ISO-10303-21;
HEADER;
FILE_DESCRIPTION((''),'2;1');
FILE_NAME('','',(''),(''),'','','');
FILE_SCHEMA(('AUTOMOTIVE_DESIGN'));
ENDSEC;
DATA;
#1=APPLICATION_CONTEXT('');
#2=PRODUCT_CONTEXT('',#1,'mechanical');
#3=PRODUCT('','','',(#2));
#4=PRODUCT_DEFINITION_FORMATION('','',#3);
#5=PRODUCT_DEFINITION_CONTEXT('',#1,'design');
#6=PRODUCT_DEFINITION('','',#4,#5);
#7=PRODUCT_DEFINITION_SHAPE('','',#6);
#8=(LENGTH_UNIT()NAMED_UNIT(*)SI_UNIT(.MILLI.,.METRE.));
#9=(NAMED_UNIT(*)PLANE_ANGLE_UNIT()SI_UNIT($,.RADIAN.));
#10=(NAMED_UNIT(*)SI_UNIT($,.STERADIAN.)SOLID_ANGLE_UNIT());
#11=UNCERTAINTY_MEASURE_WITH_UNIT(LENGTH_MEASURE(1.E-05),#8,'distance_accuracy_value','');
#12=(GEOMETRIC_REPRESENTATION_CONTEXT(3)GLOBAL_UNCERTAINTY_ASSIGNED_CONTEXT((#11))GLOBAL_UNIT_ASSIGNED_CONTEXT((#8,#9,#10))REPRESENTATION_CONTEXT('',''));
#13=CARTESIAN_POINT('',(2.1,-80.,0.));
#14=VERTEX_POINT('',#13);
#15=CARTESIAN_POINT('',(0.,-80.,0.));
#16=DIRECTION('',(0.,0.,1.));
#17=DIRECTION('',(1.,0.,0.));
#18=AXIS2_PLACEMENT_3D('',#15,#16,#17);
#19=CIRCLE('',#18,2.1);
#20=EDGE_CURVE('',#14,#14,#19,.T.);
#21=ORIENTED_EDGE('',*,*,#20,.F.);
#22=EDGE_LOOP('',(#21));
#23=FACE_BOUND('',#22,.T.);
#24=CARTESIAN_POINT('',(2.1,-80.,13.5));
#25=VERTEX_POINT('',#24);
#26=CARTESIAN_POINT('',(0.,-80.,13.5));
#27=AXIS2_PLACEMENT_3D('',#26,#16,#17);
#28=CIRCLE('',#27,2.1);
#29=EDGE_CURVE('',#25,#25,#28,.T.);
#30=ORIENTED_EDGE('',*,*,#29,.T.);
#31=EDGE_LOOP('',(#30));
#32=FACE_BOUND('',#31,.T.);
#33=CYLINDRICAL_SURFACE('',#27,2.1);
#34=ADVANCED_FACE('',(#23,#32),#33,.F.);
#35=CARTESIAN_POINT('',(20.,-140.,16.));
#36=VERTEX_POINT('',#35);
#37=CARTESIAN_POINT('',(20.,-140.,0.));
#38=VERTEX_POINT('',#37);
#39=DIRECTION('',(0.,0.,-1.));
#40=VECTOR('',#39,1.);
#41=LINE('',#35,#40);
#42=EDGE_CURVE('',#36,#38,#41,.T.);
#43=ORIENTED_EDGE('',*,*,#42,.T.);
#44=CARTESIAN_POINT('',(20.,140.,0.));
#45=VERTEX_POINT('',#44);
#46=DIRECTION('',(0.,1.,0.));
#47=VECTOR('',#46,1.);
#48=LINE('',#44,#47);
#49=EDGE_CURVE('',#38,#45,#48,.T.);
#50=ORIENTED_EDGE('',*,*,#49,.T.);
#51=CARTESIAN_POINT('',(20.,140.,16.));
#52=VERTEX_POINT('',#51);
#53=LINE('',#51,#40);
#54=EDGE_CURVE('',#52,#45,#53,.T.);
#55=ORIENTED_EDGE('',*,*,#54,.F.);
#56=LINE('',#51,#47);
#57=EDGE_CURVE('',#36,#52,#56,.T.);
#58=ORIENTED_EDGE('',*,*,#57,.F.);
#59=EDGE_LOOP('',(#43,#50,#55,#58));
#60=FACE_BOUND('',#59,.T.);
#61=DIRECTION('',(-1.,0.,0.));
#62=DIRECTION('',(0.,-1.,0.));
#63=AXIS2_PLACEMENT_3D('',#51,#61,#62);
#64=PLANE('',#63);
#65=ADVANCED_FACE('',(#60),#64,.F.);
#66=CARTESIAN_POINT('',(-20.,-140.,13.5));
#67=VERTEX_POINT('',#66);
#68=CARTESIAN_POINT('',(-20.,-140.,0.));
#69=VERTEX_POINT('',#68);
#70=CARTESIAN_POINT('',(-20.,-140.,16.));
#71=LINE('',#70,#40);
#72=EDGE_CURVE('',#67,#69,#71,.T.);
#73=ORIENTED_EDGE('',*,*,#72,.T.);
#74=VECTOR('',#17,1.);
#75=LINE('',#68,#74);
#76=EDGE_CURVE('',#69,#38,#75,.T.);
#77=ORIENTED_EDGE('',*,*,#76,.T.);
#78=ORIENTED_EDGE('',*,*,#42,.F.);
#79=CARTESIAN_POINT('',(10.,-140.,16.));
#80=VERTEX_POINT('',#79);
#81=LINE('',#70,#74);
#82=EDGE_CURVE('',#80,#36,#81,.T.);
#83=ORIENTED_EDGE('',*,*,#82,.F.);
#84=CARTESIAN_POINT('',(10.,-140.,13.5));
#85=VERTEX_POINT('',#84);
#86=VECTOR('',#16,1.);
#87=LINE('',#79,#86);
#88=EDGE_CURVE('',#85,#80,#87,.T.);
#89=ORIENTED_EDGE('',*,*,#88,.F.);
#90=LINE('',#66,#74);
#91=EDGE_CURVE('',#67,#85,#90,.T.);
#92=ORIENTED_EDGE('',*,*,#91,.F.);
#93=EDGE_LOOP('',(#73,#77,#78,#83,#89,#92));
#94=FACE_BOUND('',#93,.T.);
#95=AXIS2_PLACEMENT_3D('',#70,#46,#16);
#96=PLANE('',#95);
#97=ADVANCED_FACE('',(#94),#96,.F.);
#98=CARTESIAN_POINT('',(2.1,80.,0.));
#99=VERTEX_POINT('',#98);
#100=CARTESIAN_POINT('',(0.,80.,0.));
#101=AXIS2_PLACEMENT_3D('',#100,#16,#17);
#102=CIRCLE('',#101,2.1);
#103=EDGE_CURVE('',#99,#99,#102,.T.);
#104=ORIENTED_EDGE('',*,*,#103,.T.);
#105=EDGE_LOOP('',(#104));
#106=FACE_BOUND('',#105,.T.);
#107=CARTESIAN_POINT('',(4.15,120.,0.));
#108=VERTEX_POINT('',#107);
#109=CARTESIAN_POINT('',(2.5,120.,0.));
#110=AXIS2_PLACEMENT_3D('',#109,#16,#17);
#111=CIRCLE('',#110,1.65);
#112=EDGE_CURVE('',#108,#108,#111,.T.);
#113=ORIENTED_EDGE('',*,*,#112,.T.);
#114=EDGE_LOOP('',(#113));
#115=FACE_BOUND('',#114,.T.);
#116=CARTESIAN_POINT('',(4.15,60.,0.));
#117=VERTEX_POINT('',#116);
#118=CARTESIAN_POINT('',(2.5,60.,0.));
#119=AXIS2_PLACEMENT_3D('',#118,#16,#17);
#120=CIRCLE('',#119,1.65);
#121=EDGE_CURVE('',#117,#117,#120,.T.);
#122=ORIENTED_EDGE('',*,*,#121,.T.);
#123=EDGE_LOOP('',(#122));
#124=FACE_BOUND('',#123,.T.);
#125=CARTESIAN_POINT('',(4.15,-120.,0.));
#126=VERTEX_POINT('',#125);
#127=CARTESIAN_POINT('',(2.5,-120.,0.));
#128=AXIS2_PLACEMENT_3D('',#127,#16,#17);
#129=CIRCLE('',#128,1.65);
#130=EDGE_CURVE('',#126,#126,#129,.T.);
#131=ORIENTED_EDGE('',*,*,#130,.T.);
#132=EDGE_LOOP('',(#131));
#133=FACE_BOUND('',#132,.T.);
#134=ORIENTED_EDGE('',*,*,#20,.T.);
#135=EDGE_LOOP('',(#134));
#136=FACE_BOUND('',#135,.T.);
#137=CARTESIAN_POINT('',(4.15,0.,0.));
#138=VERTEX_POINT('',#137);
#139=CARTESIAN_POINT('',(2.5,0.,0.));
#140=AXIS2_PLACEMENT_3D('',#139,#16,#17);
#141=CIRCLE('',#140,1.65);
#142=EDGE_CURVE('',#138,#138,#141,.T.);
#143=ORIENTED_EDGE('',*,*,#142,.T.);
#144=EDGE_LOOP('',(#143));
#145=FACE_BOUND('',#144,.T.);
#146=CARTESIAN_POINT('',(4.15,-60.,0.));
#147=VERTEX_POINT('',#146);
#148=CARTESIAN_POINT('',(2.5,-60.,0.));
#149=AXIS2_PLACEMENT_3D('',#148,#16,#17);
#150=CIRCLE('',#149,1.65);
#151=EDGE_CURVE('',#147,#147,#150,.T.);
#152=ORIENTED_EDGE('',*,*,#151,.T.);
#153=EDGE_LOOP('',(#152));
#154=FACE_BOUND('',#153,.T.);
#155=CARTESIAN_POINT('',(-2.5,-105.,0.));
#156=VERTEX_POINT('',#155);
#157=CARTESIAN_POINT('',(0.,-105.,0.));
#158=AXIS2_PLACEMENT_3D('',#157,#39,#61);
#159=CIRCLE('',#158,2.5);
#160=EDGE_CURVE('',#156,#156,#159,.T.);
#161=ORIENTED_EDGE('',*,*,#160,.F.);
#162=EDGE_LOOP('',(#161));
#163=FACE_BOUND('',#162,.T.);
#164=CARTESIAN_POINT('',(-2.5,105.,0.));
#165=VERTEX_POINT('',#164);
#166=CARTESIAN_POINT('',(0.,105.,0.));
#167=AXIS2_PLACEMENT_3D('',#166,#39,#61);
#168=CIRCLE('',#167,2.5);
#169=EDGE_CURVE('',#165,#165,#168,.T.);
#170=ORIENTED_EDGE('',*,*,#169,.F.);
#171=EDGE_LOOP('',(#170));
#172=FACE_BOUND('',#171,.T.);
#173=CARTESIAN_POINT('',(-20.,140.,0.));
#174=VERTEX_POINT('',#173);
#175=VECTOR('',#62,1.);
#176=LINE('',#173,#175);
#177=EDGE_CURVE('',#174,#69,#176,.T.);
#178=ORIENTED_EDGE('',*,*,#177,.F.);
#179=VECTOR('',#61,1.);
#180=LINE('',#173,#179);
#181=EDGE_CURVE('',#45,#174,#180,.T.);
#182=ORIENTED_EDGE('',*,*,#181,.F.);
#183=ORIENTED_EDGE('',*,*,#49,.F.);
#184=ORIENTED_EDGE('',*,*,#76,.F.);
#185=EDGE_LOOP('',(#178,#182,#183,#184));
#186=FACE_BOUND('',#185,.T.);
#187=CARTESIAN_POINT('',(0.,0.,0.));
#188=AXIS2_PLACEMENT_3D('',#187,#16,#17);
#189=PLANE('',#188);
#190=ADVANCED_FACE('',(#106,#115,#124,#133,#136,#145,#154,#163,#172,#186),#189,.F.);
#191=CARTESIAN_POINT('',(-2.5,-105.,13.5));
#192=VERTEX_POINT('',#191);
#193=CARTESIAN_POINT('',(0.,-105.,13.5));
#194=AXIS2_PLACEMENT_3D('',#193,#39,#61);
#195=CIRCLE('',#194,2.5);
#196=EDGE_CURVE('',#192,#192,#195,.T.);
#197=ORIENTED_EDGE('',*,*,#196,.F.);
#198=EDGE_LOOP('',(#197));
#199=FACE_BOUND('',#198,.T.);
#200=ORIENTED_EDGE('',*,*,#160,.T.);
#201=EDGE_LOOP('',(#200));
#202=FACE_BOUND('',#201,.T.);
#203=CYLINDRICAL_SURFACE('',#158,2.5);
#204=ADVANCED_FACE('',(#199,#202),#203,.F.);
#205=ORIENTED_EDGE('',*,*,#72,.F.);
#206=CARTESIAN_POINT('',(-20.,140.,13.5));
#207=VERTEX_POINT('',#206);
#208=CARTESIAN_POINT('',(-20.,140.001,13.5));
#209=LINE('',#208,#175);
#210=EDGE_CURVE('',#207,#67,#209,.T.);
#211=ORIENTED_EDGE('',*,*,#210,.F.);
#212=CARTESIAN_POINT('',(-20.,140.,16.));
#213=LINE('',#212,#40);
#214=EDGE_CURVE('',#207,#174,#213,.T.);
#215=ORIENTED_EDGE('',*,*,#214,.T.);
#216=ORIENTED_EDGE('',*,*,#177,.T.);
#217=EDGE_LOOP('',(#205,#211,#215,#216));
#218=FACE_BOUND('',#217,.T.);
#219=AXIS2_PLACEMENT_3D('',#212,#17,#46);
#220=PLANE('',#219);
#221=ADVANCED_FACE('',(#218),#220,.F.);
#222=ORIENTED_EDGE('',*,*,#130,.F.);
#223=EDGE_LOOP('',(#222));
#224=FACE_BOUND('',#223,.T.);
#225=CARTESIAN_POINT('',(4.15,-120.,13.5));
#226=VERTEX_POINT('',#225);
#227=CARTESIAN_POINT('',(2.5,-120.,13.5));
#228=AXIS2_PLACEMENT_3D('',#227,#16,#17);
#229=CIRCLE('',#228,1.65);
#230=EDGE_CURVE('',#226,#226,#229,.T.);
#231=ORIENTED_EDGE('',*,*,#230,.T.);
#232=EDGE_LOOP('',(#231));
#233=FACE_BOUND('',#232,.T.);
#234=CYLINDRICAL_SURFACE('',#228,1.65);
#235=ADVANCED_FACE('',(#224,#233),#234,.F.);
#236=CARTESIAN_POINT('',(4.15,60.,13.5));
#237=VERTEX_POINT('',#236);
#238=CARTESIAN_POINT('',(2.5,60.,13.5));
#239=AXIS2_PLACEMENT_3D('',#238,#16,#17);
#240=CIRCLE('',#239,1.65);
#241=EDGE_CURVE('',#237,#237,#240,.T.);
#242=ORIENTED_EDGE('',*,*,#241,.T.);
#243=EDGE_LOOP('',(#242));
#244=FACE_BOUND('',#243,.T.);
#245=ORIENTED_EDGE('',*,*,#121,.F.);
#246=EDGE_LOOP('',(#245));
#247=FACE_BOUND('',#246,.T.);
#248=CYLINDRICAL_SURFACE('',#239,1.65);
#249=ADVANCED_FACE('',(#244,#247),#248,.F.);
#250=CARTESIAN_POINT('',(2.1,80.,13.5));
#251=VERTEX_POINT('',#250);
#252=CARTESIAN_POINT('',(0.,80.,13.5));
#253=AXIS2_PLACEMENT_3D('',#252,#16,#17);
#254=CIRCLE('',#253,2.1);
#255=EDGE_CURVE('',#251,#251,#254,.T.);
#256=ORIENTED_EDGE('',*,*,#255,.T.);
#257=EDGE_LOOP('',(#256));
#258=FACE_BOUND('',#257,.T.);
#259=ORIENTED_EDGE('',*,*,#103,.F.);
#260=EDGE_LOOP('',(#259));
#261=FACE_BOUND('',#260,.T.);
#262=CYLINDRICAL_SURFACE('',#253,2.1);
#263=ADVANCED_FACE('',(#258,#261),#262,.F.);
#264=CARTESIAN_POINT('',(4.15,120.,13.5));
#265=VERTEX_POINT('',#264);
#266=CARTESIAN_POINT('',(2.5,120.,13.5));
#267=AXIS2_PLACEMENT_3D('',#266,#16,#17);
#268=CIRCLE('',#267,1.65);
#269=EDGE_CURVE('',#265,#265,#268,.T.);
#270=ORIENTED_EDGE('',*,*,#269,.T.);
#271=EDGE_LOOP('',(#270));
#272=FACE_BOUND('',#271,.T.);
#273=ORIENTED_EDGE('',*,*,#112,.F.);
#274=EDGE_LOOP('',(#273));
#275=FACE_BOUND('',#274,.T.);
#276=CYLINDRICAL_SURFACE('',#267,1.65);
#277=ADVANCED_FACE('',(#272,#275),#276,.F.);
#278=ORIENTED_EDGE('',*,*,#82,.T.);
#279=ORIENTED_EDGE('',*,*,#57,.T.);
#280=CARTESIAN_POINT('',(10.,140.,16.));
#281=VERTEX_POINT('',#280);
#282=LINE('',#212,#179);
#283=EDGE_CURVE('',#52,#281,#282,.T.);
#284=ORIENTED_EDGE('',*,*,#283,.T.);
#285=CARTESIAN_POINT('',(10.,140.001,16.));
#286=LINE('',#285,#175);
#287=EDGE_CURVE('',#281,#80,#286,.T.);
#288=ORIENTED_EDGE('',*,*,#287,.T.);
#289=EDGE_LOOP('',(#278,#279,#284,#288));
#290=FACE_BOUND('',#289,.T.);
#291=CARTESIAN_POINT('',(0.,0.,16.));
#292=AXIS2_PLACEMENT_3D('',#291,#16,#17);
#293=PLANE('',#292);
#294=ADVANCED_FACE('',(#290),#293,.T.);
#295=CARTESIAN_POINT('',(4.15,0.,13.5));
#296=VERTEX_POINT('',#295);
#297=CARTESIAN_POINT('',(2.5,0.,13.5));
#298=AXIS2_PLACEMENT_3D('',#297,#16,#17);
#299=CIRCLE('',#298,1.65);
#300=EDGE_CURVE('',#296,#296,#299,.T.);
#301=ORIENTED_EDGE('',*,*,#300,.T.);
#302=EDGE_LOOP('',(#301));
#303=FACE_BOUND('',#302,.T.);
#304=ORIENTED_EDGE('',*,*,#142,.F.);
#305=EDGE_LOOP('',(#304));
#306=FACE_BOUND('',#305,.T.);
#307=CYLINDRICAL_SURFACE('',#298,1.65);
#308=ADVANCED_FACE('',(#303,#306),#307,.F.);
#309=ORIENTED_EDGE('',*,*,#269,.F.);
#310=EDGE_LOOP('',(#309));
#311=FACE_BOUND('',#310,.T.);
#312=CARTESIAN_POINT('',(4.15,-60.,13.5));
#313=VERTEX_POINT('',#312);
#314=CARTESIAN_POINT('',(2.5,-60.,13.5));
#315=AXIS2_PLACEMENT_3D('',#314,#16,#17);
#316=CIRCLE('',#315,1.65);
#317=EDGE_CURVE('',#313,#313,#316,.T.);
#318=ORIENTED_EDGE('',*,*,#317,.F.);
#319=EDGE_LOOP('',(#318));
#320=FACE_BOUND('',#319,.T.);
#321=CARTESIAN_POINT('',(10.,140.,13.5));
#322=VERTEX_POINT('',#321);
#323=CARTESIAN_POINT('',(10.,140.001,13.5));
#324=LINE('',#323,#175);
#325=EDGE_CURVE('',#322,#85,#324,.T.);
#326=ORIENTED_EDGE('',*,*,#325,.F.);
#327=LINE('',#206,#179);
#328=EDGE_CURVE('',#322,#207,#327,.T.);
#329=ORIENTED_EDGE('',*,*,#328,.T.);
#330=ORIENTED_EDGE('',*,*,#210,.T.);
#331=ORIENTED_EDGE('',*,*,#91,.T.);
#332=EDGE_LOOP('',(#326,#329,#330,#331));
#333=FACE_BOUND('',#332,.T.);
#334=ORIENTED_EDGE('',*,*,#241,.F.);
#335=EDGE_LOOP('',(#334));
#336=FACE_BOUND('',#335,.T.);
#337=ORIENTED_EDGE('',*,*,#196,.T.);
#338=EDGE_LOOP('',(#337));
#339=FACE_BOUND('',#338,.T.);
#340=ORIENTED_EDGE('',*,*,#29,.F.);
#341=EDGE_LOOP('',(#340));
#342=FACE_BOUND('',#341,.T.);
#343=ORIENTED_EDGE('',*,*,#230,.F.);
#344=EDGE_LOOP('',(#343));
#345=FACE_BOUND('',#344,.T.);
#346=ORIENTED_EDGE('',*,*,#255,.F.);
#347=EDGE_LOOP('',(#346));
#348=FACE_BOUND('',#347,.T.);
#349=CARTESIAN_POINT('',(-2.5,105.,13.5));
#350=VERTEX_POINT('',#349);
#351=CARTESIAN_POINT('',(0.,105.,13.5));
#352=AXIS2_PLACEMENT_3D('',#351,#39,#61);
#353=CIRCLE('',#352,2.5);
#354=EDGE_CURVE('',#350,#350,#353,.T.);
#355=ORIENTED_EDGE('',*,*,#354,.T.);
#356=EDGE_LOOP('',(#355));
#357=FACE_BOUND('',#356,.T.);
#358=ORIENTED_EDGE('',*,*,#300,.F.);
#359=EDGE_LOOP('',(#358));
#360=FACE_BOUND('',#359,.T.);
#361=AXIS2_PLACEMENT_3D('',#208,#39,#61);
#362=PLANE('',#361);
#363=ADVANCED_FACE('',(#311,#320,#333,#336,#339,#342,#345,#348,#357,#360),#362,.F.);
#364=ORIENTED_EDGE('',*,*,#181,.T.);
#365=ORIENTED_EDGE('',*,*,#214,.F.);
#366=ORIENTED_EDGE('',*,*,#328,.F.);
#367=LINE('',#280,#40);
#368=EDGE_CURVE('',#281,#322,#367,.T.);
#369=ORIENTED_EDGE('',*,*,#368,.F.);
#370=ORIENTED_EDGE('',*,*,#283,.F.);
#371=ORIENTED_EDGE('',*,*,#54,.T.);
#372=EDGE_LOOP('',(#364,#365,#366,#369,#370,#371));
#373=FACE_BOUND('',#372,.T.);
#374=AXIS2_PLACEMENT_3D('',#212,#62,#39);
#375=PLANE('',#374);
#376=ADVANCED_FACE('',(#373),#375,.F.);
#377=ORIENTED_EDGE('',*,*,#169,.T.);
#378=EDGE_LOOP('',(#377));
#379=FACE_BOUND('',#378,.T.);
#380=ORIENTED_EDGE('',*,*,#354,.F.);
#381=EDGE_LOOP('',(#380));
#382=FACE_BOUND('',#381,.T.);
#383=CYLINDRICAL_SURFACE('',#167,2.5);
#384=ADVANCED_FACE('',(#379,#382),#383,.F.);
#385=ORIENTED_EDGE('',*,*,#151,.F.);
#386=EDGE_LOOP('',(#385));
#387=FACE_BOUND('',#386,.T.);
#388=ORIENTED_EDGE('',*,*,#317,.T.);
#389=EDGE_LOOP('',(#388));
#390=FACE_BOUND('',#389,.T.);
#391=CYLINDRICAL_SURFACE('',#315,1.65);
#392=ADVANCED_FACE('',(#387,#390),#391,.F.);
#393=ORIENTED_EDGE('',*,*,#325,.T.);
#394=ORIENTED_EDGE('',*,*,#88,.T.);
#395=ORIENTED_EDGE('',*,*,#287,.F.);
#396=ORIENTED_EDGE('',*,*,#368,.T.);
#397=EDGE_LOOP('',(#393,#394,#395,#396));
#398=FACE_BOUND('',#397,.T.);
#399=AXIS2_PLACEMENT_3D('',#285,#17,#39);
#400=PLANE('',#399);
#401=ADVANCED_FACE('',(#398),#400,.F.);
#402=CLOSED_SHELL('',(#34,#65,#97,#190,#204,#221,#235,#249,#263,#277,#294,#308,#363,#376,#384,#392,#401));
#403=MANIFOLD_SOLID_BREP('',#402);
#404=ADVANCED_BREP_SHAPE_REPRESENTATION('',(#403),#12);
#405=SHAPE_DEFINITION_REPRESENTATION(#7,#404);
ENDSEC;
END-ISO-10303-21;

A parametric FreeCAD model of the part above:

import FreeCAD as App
import Part
import Sketcher
Q = App.Units.Quantity

doc = App.newDocument("Part")
body = doc.addObject("PartDesign::Body", "Body")

# Sketch on XY plane
sketch1 = doc.addObject("Sketcher::SketchObject", "Sketch")
body.addObject(sketch1)
sketch1.AttachmentSupport = (doc.XY_Plane, [""])
sketch1.MapMode = "FlatFace"
sketch1.addGeometry([
    Part.LineSegment(App.Vector(-20, 140, 0), App.Vector(-20, -140, 0)),
    Part.LineSegment(App.Vector(-20, -140, 0), App.Vector(20, -140, 0)),
    Part.LineSegment(App.Vector(20, -140, 0), App.Vector(20, 140, 0)),
    Part.LineSegment(App.Vector(20, 140, 0), App.Vector(-20, 140, 0)),
], False)
sketch1.addConstraint([
    Sketcher.Constraint("Coincident", 0, 2, 1, 1),
    Sketcher.Constraint("Coincident", 1, 2, 2, 1),
    Sketcher.Constraint("Coincident", 2, 2, 3, 1),
    Sketcher.Constraint("Coincident", 3, 2, 0, 1),
    Sketcher.Constraint("Vertical", 0),
    Sketcher.Constraint("Horizontal", 1),
    Sketcher.Constraint("Vertical", 2),
    Sketcher.Constraint("Horizontal", 3),
    Sketcher.Constraint("Symmetric", 0, 2, 2, 2, -1, 1),
    Sketcher.Constraint("DistanceX", 1, 1, 1, 2, Q("40 mm")),
    Sketcher.Constraint("DistanceY", 0, 2, 0, 1, Q("280 mm")),
])
pad1 = doc.addObject("PartDesign::Pad", "Pad")
body.addObject(pad1)
pad1.Profile = sketch1
pad1.Length = 16

# Sketch on XZ plane
sketch2 = doc.addObject("Sketcher::SketchObject", "Sketch001")
body.addObject(sketch2)
sketch2.AttachmentSupport = (doc.XZ_Plane, [""])
sketch2.MapMode = "FlatFace"
sketch2.AttachmentOffset = App.Placement(App.Vector(0, 0, 140), App.Rotation())
sketch2.addGeometry([
    Part.LineSegment(App.Vector(-20, 16, 0), App.Vector(-20, 13.5, 0)),
    Part.LineSegment(App.Vector(-20, 13.5, 0), App.Vector(10, 13.5, 0)),
    Part.LineSegment(App.Vector(10, 13.5, 0), App.Vector(10, 16, 0)),
    Part.LineSegment(App.Vector(10, 16, 0), App.Vector(-20, 16, 0)),
], False)
sketch2.addConstraint([
    Sketcher.Constraint("Coincident", 0, 2, 1, 1),
    Sketcher.Constraint("Coincident", 1, 2, 2, 1),
    Sketcher.Constraint("Coincident", 2, 2, 3, 1),
    Sketcher.Constraint("Coincident", 3, 2, 0, 1),
    Sketcher.Constraint("Vertical", 0),
    Sketcher.Constraint("Horizontal", 1),
    Sketcher.Constraint("Vertical", 2),
    Sketcher.Constraint("Horizontal", 3),
    Sketcher.Constraint("DistanceX", 1, 1, 1, 2, Q("30 mm")),
    Sketcher.Constraint("DistanceY", 0, 2, 0, 1, Q("2.5 mm")),
    Sketcher.Constraint("DistanceX", 0, 2, -1, 1, Q("20 mm")),
    Sketcher.Constraint("DistanceY", -1, 1, 2, 2, Q("16 mm")),
])
pocket1 = doc.addObject("PartDesign::Pocket", "Pocket")
body.addObject(pocket1)
pocket1.Profile = sketch2
pocket1.Type = "UpToFirst"

# Sketch on XY plane
sketch3 = doc.addObject("Sketcher::SketchObject", "Sketch002")
body.addObject(sketch3)
sketch3.AttachmentSupport = (doc.XY_Plane, [""])
sketch3.MapMode = "FlatFace"
sketch3.AttachmentOffset = App.Placement(App.Vector(0, 0, 13.5), App.Rotation())
sketch3.addGeometry([
    Part.Circle(App.Vector(2.5, -120, 0), App.Vector(0, 0, 1), 1.6),  # 0
    Part.Circle(App.Vector(2.5, -60, 0), App.Vector(0, 0, 1), 1.6),  # 1
    Part.Circle(App.Vector(2.5, 0, 0), App.Vector(0, 0, 1), 1.6),  # 2
    Part.Circle(App.Vector(2.5, 60, 0), App.Vector(0, 0, 1), 1.6),  # 3
    Part.Circle(App.Vector(2.5, 120, 0), App.Vector(0, 0, 1), 1.6),  # 4
], False)
sketch3.addConstraint([
    Sketcher.Constraint("Equal", 0, 1),
    Sketcher.Constraint("Equal", 1, 2),
    Sketcher.Constraint("Equal", 2, 3),
    Sketcher.Constraint("Equal", 3, 4),
    Sketcher.Constraint("Symmetric", 1, 3, 3, 3, -1),
    Sketcher.Constraint("Symmetric", 0, 3, 4, 3, -1),
    Sketcher.Constraint("PointOnObject", 2, 3, -1),
    Sketcher.Constraint("Vertical", 0, 3, 1, 3),
    Sketcher.Constraint("Vertical", 1, 3, 2, 3),
    Sketcher.Constraint("Diameter", 0, Q("3.3 mm")),
    Sketcher.Constraint("DistanceY", 0, 3, -1, 1, Q("120 mm")),
    Sketcher.Constraint("DistanceY", 1, 3, -1, 1, Q("60 mm")),
    Sketcher.Constraint("DistanceX", -1, 1, 0, 3, Q("2.5 mm")),
])
doc.recompute()
hole = doc.addObject("PartDesign::Hole", "Hole")
body.addObject(hole)
hole.Profile = sketch3
hole.ThreadType = "None"
hole.Diameter = 3.3
hole.DepthType = "ThroughAll"

# Sketch on XY plane
sketch4 = doc.addObject("Sketcher::SketchObject", "Sketch003")
body.addObject(sketch4)
sketch4.AttachmentSupport = (doc.XY_Plane, [""])
sketch4.MapMode = "FlatFace"
sketch4.addGeometry([
    Part.Circle(App.Vector(0, 105, 0), App.Vector(0, 0, 1), 2.5),
    Part.Circle(App.Vector(0, -105, 0), App.Vector(0, 0, 1), 2.5),
], False)
sketch4.addConstraint([
    Sketcher.Constraint("Equal", 0, 1),
    Sketcher.Constraint("Symmetric", 0, 3, 1, 3, -1, 1),
    Sketcher.Constraint("PointOnObject", 0, 3, -2),
    Sketcher.Constraint("Diameter", 0, Q("5 mm")),
    Sketcher.Constraint("DistanceY", -1, 1, 0, 3, Q("105 mm")),
])
doc.recompute()
hole2 = doc.addObject("PartDesign::Hole", "Hole001")
body.addObject(hole2)
hole2.Profile = sketch4
hole2.ThreadType = "None"
hole2.Diameter = 5
hole2.DepthType = "ThroughAll"
hole2.Reversed = True

# Sketch on XY plane
sketch5 = doc.addObject("Sketcher::SketchObject", "Sketch004")
body.addObject(sketch5)
sketch5.AttachmentSupport = (doc.XY_Plane, [""])
sketch5.MapMode = "FlatFace"
sketch5.AttachmentOffset = App.Placement(App.Vector(0, 0, 13.5), App.Rotation())
sketch5.addGeometry([
    Part.Circle(App.Vector(0, 80, 0), App.Vector(0, 0, 1), 2.1),
    Part.Circle(App.Vector(0, -80, 0), App.Vector(0, 0, 1), 2.1),
], False)
sketch5.addConstraint([
    Sketcher.Constraint("Equal", 0, 1),
    Sketcher.Constraint("Symmetric", 0, 3, 1, 3, -1, 1),
    Sketcher.Constraint("PointOnObject", 0, 3, -2),
    Sketcher.Constraint("Diameter", 0, Q("4.2 mm")),
    Sketcher.Constraint("DistanceY", -1, 1, 0, 3, Q("80 mm")),
])
doc.recompute()
hole3 = doc.addObject("PartDesign::Hole", "Hole002")
body.addObject(hole3)
hole3.Profile = sketch5
hole3.ThreadType = "None"
hole3.Diameter = 4.2
hole3.DepthType = "Dimension"
hole3.Depth = 13.5
hole3.DrillPoint = "Flat"

doc.recompute()
